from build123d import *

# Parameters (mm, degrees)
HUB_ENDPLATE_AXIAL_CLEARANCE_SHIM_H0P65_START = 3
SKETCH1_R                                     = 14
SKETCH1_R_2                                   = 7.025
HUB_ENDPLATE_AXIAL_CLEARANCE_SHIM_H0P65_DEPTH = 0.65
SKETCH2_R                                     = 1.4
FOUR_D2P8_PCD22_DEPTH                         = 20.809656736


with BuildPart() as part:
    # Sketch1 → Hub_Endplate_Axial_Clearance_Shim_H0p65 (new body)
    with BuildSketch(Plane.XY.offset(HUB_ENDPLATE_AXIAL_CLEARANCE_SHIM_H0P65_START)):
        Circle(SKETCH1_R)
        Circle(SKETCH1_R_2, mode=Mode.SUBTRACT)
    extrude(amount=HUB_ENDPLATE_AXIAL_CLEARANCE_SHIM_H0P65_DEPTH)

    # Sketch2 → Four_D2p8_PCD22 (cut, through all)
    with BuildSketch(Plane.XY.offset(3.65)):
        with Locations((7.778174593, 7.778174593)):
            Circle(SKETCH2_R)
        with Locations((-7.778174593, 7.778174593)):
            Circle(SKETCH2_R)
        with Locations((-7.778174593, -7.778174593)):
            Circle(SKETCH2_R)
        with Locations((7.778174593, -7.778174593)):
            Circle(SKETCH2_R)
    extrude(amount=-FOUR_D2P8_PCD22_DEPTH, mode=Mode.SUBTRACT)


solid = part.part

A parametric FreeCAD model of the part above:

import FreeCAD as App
import Part
import Sketcher

V = App.Vector
Q = App.Units.Quantity

doc = App.newDocument("Part")
body = doc.addObject("PartDesign::Body", "Body")

sketch1 = body.newObject("Sketcher::SketchObject", "Sketch")
sketch1.AttachmentSupport = (doc.getObject("XY_Plane"), [""])
sketch1.MapMode = "FlatFace"
sketch1.AttachmentOffset = App.Placement(V(0, 0, 3), App.Rotation())
sketch1.addGeometry([
    Part.Circle(V(0, 0, 0), V(0, 0, 1), 14),
    Part.Circle(V(0, 0, 0), V(0, 0, 1), 7),
], False)
sketch1.addConstraint([
    Sketcher.Constraint("Coincident", 0, 3, -1, 1),
    Sketcher.Constraint("Coincident", 1, 3, -1, 1),
    Sketcher.Constraint("Diameter", 0, Q("28 mm")),
    Sketcher.Constraint("Diameter", 1, Q("14.05 mm")),
])
pad1 = body.newObject("PartDesign::Pad", "Pad")
pad1.Profile = sketch1
pad1.Length = 0.65

sketch2 = body.newObject("Sketcher::SketchObject", "Sketch001")
sketch2.AttachmentSupport = (doc.getObject("XY_Plane"), [""])
sketch2.MapMode = "FlatFace"
sketch2.AttachmentOffset = App.Placement(V(0, 0, 3.65), App.Rotation())
sketch2.addGeometry([
    Part.Circle(V(7.8, 7.8, 0), V(0, 0, 1), 1.4),
    Part.Circle(V(-7.8, 7.8, 0), V(0, 0, 1), 1.4),
    Part.Circle(V(-7.8, -7.8, 0), V(0, 0, 1), 1.4),
    Part.Circle(V(7.8, -7.8, 0), V(0, 0, 1), 1.4),
], False)
sketch2.addConstraint([
    Sketcher.Constraint("Equal", 0, 1),
    Sketcher.Constraint("Equal", 1, 2),
    Sketcher.Constraint("Equal", 2, 3),
    Sketcher.Constraint("Symmetric", 0, 3, 2, 3, -1, 1),
    Sketcher.Constraint("Symmetric", 1, 3, 3, 3, -1, 1),
    Sketcher.Constraint("Symmetric", 0, 3, 1, 3, -2),
    Sketcher.Constraint("Diameter", 0, Q("2.8 mm")),
    Sketcher.Constraint("DistanceX", 1, 3, 0, 3, Q("15.556349 mm")),
    Sketcher.Constraint("DistanceY", 2, 3, 1, 3, Q("15.556349 mm")),
])
pocket1 = body.newObject("PartDesign::Pocket", "Pocket")
pocket1.Profile = sketch2
pocket1.Type = "ThroughAll"

doc.recompute()
